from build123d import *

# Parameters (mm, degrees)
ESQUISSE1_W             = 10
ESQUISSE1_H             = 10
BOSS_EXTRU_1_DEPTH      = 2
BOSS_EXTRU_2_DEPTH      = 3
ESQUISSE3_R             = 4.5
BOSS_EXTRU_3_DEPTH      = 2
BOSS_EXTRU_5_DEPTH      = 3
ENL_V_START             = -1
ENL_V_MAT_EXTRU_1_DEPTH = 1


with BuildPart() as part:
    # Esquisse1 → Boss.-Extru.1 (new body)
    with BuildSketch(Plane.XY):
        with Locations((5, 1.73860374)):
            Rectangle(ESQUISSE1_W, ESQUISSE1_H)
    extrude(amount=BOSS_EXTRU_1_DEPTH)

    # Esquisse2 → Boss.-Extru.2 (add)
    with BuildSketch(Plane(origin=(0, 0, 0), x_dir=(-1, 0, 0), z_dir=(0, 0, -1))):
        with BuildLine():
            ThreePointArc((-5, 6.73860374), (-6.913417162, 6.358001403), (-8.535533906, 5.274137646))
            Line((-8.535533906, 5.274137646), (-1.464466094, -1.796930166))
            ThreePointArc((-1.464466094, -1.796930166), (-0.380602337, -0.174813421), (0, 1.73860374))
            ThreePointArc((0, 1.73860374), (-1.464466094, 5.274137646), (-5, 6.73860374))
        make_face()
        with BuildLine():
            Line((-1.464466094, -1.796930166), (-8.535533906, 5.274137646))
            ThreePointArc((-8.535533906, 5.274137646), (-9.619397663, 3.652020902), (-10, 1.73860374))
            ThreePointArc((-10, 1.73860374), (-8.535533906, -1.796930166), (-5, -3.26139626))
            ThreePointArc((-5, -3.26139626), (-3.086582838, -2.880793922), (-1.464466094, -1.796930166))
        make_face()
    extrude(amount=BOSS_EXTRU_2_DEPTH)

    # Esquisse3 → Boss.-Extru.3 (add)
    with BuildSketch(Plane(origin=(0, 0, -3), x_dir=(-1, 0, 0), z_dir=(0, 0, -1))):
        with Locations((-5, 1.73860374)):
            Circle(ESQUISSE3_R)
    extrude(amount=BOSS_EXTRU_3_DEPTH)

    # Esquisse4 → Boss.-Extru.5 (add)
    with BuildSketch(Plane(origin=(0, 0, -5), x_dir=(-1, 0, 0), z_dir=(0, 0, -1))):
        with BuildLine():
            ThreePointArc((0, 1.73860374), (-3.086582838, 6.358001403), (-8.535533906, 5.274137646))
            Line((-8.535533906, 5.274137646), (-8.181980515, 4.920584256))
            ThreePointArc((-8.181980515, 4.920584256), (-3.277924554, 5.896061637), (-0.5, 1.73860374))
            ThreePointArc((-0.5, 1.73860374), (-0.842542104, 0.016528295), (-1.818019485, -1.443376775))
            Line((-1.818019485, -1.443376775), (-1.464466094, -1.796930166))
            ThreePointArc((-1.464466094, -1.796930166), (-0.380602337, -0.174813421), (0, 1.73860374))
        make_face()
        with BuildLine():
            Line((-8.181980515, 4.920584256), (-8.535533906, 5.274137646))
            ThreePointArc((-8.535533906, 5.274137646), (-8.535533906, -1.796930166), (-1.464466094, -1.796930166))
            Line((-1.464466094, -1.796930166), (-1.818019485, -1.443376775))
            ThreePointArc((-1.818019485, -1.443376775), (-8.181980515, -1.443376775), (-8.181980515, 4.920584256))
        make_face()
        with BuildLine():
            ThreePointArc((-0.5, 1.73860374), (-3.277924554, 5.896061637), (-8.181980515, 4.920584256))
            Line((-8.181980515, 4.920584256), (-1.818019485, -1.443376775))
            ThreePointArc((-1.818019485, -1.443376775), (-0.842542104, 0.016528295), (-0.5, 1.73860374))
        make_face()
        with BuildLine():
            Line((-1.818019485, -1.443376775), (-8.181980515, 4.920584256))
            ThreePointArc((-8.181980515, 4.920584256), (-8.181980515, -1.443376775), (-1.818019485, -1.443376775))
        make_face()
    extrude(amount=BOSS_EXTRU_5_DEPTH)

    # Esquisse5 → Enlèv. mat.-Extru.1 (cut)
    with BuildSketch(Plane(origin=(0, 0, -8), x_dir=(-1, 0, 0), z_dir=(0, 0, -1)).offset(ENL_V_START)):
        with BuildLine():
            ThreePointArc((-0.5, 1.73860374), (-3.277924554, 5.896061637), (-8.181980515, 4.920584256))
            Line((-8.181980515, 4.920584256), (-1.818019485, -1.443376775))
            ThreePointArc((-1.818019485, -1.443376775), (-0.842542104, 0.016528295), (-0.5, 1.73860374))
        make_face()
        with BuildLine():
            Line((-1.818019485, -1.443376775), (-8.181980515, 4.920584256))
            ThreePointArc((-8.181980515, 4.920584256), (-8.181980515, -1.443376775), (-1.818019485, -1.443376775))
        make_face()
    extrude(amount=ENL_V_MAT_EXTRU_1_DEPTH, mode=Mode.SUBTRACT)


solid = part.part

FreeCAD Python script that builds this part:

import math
import FreeCAD as App
import Part
import Sketcher
from FreeCAD import Vector

doc = App.newDocument("Part")
body = doc.addObject("PartDesign::Body", "Body")

sketch1 = body.newObject("Sketcher::SketchObject", "Sketch")
sketch1.AttachmentSupport = (doc.getObject("XY_Plane"), [""])
sketch1.MapMode = "FlatFace"
sketch1.addGeometry([
    Part.LineSegment(Vector(0, 6.738604, 0), Vector(0, -3.261396, 0)),
    Part.LineSegment(Vector(0, -3.261396, 0), Vector(10, -3.261396, 0)),
    Part.LineSegment(Vector(10, -3.261396, 0), Vector(10, 6.738604, 0)),
    Part.LineSegment(Vector(10, 6.738604, 0), Vector(0, 6.738604, 0)),
], False)
sketch1.addConstraint([
    Sketcher.Constraint("Coincident", 0, 2, 1, 1),
    Sketcher.Constraint("Coincident", 1, 2, 2, 1),
    Sketcher.Constraint("Coincident", 2, 2, 3, 1),
    Sketcher.Constraint("Coincident", 3, 2, 0, 1),
    Sketcher.Constraint("Vertical", 0),
    Sketcher.Constraint("Horizontal", 1),
    Sketcher.Constraint("Vertical", 2),
    Sketcher.Constraint("Horizontal", 3),
    Sketcher.Constraint("PointOnObject", 0, 2, -2),
    Sketcher.Constraint("Equal", 3, 0),
    Sketcher.Constraint("DistanceX", 1, 1, 1, 2, 10.0),
    Sketcher.Constraint("DistanceY", 0, 2, -1, 1, 3.261396),
])
pad1 = body.newObject("PartDesign::Pad", "Pad")
pad1.Profile = sketch1
pad1.Length = 2

sketch2 = body.newObject("Sketcher::SketchObject", "Sketch001")
sketch2.AttachmentSupport = (doc.getObject("XY_Plane"), [""])
sketch2.MapMode = "FlatFace"
sketch2.addGeometry([
    Part.ArcOfCircle(Part.Circle(Vector(5, 1.738604, 0), Vector(0, 0, 1), 5), math.radians(180), math.radians(225)),
    Part.ArcOfCircle(Part.Circle(Vector(5, 1.738604, 0), Vector(0, 0, 1), 5), math.radians(90), math.radians(180)),
    Part.ArcOfCircle(Part.Circle(Vector(5, 1.738604, 0), Vector(0, 0, 1), 5), math.radians(45), math.radians(90)),
    Part.ArcOfCircle(Part.Circle(Vector(5, 1.738604, 0), Vector(0, 0, 1), 5), math.radians(0), math.radians(45)),
    Part.ArcOfCircle(Part.Circle(Vector(5, 1.738604, 0), Vector(0, 0, 1), 5), math.radians(-90), math.radians(0)),
    Part.ArcOfCircle(Part.Circle(Vector(5, 1.738604, 0), Vector(0, 0, 1), 5), math.radians(-135), math.radians(-90)),
], False)
sketch2.addConstraint([
    Sketcher.Constraint("Tangent", 0, 1, 1, 2),
    Sketcher.Constraint("Tangent", 1, 1, 2, 2),
    Sketcher.Constraint("Tangent", 2, 1, 3, 2),
    Sketcher.Constraint("Tangent", 3, 1, 4, 2),
    Sketcher.Constraint("Tangent", 4, 1, 5, 2),
    Sketcher.Constraint("Tangent", 5, 1, 0, 2),
    Sketcher.Constraint("Coincident", 2, 3, 0, 3),
    Sketcher.Constraint("Equal", 2, 3),
    Sketcher.Constraint("PointOnObject", 0, 1, -2),
    Sketcher.Constraint("Horizontal", 5, 3, 0, 1),
    Sketcher.Constraint("Horizontal", 0, 1, 3, 1),
    Sketcher.Constraint("Vertical", 5, 3, 1, 1),
    Sketcher.Constraint("Vertical", 1, 1, 4, 1),
    Sketcher.Constraint("Radius", 0, 5.0),
    Sketcher.Constraint("DistanceY", 5, 1, -1, 1, 1.79693),
    Sketcher.Constraint("DistanceY", -1, 1, 0, 3, 1.738604),
    Sketcher.Constraint("DistanceX", -1, 1, 2, 1, 8.535534),
])
pad2 = body.newObject("PartDesign::Pad", "Pad001")
pad2.Profile = sketch2
pad2.Length = 3
pad2.Reversed = True

sketch3 = body.newObject("Sketcher::SketchObject", "Sketch002")
sketch3.AttachmentSupport = (doc.getObject("XY_Plane"), [""])
sketch3.MapMode = "FlatFace"
sketch3.AttachmentOffset = App.Placement(Vector(0, 0, -3), App.Rotation())
sketch3.addGeometry(Part.Circle(Vector(5, 1.738604, 0), Vector(0, 0, 1), 4.5), False)
sketch3.addConstraint([
    Sketcher.Constraint("Diameter", 0, 9.0),
    Sketcher.Constraint("DistanceX", -1, 1, 0, 3, 5.0),
    Sketcher.Constraint("DistanceY", -1, 1, 0, 3, 1.738604),
])
pad3 = body.newObject("PartDesign::Pad", "Pad002")
pad3.Profile = sketch3
pad3.Length = 2
pad3.Reversed = True

sketch4 = body.newObject("Sketcher::SketchObject", "Sketch003")
sketch4.AttachmentSupport = (doc.getObject("XY_Plane"), [""])
sketch4.MapMode = "FlatFace"
sketch4.AttachmentOffset = App.Placement(Vector(0, 0, -5), App.Rotation())
sketch4.addGeometry([
    Part.ArcOfCircle(Part.Circle(Vector(5, 1.738604, 0), Vector(0, 0, 1), 5), math.radians(45), math.radians(180)),
    Part.ArcOfCircle(Part.Circle(Vector(5, 1.738604, 0), Vector(0, 0, 1), 5), math.radians(-135), math.radians(45)),
    Part.ArcOfCircle(Part.Circle(Vector(5, 1.738604, 0), Vector(0, 0, 1), 5), math.radians(180), math.radians(225)),
], False)
sketch4.addConstraint([
    Sketcher.Constraint("Tangent", 0, 1, 1, 2),
    Sketcher.Constraint("Tangent", 1, 1, 2, 2),
    Sketcher.Constraint("Tangent", 2, 1, 0, 2),
    Sketcher.Constraint("PointOnObject", 2, 1, -2),
    Sketcher.Constraint("Horizontal", 1, 3, 2, 1),
    Sketcher.Constraint("Radius", 0, 5.0),
    Sketcher.Constraint("DistanceY", 1, 1, -1, 1, 1.79693),
    Sketcher.Constraint("DistanceY", -1, 1, 0, 3, 1.738604),
    Sketcher.Constraint("DistanceX", -1, 1, 0, 1, 8.535534),
])
pad4 = body.newObject("PartDesign::Pad", "Pad003")
pad4.Profile = sketch4
pad4.Length = 3
pad4.Reversed = True

sketch5 = body.newObject("Sketcher::SketchObject", "Sketch004")
sketch5.AttachmentSupport = (doc.getObject("XY_Plane"), [""])
sketch5.MapMode = "FlatFace"
sketch5.AttachmentOffset = App.Placement(Vector(0, 0, -7), App.Rotation())
sketch5.addGeometry([
    Part.ArcOfCircle(Part.Circle(Vector(5, 1.738604, 0), Vector(0, 0, 1), 4.5), math.radians(45), math.radians(180)),
    Part.ArcOfCircle(Part.Circle(Vector(5, 1.738604, 0), Vector(0, 0, 1), 4.5), math.radians(-135), math.radians(45)),
    Part.ArcOfCircle(Part.Circle(Vector(5, 1.738604, 0), Vector(0, 0, 1), 4.5), math.radians(-180), math.radians(-135)),
], False)
sketch5.addConstraint([
    Sketcher.Constraint("Tangent", 0, 1, 1, 2),
    Sketcher.Constraint("Tangent", 1, 1, 2, 2),
    Sketcher.Constraint("Tangent", 2, 1, 0, 2),
    Sketcher.Constraint("Horizontal", 1, 3, 2, 1),
    Sketcher.Constraint("Radius", 0, 4.5),
    Sketcher.Constraint("DistanceX", -1, 1, 0, 3, 5.0),
    Sketcher.Constraint("DistanceX", -1, 1, 0, 1, 8.181981),
    Sketcher.Constraint("DistanceX", -1, 1, 1, 1, 1.818019),
    Sketcher.Constraint("DistanceY", -1, 1, 0, 3, 1.738604),
])
pocket1 = body.newObject("PartDesign::Pocket", "Pocket")
pocket1.Profile = sketch5
pocket1.Length = 1

doc.recompute()
